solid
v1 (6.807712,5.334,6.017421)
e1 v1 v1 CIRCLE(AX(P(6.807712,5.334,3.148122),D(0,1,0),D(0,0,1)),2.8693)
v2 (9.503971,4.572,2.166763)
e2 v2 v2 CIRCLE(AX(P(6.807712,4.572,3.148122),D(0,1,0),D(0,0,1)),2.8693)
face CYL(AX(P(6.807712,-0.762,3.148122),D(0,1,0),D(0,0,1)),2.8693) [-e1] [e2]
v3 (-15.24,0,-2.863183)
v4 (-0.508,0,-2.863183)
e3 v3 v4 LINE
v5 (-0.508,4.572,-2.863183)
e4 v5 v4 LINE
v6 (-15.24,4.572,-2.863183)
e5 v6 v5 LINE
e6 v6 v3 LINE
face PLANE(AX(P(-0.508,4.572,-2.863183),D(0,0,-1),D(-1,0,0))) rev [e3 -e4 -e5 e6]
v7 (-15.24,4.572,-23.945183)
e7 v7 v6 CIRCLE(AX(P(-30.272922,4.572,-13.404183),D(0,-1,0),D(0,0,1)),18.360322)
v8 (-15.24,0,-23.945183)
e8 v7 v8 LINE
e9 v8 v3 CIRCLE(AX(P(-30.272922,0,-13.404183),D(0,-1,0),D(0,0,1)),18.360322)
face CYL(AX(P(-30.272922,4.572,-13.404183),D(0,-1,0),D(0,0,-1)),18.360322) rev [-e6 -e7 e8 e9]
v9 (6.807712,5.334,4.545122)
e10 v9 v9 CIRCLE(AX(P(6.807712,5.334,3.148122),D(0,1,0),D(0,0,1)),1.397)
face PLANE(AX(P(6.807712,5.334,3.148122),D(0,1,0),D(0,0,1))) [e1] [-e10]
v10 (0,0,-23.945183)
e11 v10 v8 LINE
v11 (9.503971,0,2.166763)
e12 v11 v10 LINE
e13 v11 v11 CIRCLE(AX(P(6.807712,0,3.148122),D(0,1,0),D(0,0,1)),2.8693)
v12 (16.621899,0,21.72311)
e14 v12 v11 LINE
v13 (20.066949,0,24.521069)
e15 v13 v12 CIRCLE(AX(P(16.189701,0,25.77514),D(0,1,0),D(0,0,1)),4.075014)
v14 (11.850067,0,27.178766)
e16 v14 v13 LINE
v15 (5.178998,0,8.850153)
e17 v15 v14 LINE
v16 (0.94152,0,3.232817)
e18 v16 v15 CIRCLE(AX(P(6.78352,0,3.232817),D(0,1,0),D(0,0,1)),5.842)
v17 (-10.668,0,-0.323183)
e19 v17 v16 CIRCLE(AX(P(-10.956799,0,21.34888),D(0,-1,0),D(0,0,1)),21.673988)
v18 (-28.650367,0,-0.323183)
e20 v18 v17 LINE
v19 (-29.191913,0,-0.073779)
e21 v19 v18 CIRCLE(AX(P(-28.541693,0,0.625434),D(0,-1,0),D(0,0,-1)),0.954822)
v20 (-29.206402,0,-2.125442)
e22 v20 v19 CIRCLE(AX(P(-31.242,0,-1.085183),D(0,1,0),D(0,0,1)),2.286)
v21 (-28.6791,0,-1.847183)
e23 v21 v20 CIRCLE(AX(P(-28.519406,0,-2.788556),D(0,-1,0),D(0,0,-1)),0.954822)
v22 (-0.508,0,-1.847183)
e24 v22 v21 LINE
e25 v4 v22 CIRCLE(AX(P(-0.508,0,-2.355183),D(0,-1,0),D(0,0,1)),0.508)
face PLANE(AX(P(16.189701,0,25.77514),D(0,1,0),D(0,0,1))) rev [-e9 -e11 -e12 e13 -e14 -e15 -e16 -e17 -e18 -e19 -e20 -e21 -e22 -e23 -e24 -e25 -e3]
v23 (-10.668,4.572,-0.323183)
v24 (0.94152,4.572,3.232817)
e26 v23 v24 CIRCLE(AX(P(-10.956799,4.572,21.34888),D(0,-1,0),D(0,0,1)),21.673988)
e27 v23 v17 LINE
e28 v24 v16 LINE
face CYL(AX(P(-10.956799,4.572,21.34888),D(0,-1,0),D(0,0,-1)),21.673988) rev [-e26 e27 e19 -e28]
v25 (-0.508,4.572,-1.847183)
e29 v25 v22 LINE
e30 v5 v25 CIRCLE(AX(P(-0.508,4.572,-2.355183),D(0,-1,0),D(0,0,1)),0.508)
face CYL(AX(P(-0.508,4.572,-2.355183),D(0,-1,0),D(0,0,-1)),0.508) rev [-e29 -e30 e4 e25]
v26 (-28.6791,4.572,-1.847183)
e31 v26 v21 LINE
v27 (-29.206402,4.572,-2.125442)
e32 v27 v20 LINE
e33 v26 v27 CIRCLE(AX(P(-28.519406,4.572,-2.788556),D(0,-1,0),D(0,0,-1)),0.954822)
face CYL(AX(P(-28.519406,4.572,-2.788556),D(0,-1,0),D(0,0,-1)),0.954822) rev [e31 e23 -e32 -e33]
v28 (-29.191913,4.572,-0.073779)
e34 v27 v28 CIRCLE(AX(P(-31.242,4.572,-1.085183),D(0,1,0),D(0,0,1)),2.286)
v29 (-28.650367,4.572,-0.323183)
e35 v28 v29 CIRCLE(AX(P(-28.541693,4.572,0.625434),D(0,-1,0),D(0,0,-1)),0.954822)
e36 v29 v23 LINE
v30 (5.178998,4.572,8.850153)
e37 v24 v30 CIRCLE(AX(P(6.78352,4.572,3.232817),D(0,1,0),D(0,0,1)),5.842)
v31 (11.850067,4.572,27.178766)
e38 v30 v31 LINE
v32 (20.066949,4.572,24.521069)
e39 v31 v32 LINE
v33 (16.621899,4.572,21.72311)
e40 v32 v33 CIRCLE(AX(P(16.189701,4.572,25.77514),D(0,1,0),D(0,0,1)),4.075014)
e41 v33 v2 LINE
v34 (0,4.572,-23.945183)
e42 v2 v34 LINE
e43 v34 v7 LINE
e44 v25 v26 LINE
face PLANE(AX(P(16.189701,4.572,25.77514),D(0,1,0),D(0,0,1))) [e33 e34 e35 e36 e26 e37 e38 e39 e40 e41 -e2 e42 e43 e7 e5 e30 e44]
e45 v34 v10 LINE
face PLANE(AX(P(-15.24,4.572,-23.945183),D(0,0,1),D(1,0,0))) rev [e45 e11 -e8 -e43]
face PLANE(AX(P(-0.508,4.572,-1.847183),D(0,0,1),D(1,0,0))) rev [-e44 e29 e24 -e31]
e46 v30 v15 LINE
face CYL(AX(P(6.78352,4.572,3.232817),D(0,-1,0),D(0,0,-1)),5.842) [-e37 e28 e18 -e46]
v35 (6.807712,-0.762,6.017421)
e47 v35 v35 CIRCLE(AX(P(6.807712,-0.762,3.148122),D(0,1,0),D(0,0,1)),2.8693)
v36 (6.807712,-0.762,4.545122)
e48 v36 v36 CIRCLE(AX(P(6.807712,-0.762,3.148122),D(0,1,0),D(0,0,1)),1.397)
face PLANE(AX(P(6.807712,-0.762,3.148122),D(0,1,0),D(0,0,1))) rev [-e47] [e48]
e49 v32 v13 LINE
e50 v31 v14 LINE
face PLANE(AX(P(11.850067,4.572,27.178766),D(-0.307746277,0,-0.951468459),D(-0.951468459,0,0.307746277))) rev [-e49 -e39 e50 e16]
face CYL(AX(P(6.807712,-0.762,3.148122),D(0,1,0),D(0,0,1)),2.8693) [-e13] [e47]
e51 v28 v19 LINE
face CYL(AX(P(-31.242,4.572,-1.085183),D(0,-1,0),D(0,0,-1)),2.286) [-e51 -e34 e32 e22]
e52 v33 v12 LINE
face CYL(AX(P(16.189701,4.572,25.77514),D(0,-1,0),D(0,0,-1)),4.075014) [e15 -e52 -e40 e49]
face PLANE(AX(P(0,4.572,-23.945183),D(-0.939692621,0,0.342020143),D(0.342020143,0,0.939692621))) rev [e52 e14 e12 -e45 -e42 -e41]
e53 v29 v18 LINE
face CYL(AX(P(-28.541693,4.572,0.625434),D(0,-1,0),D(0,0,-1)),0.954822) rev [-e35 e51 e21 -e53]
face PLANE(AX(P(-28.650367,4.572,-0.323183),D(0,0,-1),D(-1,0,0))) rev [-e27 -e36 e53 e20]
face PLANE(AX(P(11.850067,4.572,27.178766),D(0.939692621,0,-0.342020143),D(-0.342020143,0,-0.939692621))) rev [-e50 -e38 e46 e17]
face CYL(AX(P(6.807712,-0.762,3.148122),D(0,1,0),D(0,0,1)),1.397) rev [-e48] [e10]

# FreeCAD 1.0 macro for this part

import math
import FreeCAD as App
import Part
import Sketcher
Q = App.Units.Quantity

doc = App.newDocument("Part")
params = doc.addObject("Spreadsheet::Sheet", "Params")
for row, (alias, value) in enumerate([
    ("sketch1_radius", "0.02 in"),
    ("sketch1_radius2", "0.09 in"),
    ("sketch1_radius3", "0.23 in"),
    ("sketch1_width", "0.6 in"),
    ("sketch1_width2", "0.58 in"),
    ("pad1_length", "0.18 in"),
    ("pad2_length", "0.03 in"),
    ("pad2_length2", "0.21 in"),
    ("sketch3_diameter", "0.11 in"),
], start=1):
    params.set(f"A{row}", alias)
    params.set(f"B{row}", "=" + value)
    params.setAlias(f"B{row}", alias)

body = doc.addObject("PartDesign::Body", "Body")

# Sketch on XZ plane
sketch1 = body.newObject("Sketcher::SketchObject", "Sketch")
sketch1.AttachmentSupport = (doc.getObject("XZ_Plane"), [""])
sketch1.MapMode = "FlatFace"
sketch1.addGeometry([
    Part.LineSegment(App.Vector(16.6, 21.7, 0), App.Vector(0, -23.9, 0)),  # 0
    Part.LineSegment(App.Vector(0, -23.9, 0), App.Vector(-15.2, -23.9, 0)),  # 1
    Part.ArcOfCircle(Part.Circle(App.Vector(-30.3, -13.4, 0), App.Vector(0, 0, 1), 18.4), math.radians(-35), math.radians(35)),  # 2
    Part.LineSegment(App.Vector(-15.2, -2.9, 0), App.Vector(-0.5, -2.9, 0)),  # 3
    Part.ArcOfCircle(Part.Circle(App.Vector(-0.5, -2.4, 0), App.Vector(0, 0, 1), 0.5), math.radians(-90), math.radians(90)),  # 4
    Part.LineSegment(App.Vector(-0.5, -1.8, 0), App.Vector(-28.7, -1.8, 0)),  # 5
    Part.ArcOfCircle(Part.Circle(App.Vector(-28.5, -2.8, 0), App.Vector(0, 0, 1), 1), math.radians(100), math.radians(136)),  # 6
    Part.ArcOfCircle(Part.Circle(App.Vector(-31.2, -1.1, 0), App.Vector(0, 0, 1), 2.3), math.radians(26), math.radians(333)),  # 7
    Part.ArcOfCircle(Part.Circle(App.Vector(-28.5, 0.6, 0), App.Vector(0, 0, 1), 1), math.radians(-133), math.radians(-97)),  # 8
    Part.LineSegment(App.Vector(-28.7, -0.3, 0), App.Vector(-10.7, -0.3, 0)),  # 9
    Part.ArcOfCircle(Part.Circle(App.Vector(-11, 21.3, 0), App.Vector(0, 0, 1), 21.7), math.radians(-89), math.radians(-57)),  # 10
    Part.ArcOfCircle(Part.Circle(App.Vector(6.8, 3.2, 0), App.Vector(0, 0, 1), 5.8), math.radians(106), math.radians(180)),  # 11
    Part.LineSegment(App.Vector(5.2, 8.9, 0), App.Vector(11.9, 27.2, 0)),  # 12
    Part.LineSegment(App.Vector(11.9, 27.2, 0), App.Vector(20.1, 24.5, 0)),  # 13
    Part.ArcOfCircle(Part.Circle(App.Vector(16.2, 25.8, 0), App.Vector(0, 0, 1), 4.1), math.radians(-84), math.radians(-18)),  # 14
], False)
sketch1.addConstraint([
    Sketcher.Constraint("Coincident", 0, 2, 1, 1),
    Sketcher.Constraint("Coincident", 1, 2, 2, 1),
    Sketcher.Constraint("Coincident", 2, 2, 3, 1),
    Sketcher.Constraint("Tangent", 3, 2, 4, 1),
    Sketcher.Constraint("Tangent", 4, 2, 5, 1),
    Sketcher.Constraint("Coincident", 5, 2, 6, 1),
    Sketcher.Constraint("Coincident", 6, 2, 7, 2),
    Sketcher.Constraint("Coincident", 7, 1, 8, 1),
    Sketcher.Constraint("Coincident", 8, 2, 9, 1),
    Sketcher.Constraint("Coincident", 9, 2, 10, 1),
    Sketcher.Constraint("Coincident", 10, 2, 11, 2),
    Sketcher.Constraint("Coincident", 11, 1, 12, 1),
    Sketcher.Constraint("Coincident", 12, 2, 13, 1),
    Sketcher.Constraint("Coincident", 13, 2, 14, 2),
    Sketcher.Constraint("Coincident", 14, 1, 0, 1),
    Sketcher.Constraint("Horizontal", 1),
    Sketcher.Constraint("Horizontal", 3),
    Sketcher.Constraint("Horizontal", 5),
    Sketcher.Constraint("Horizontal", 9),
    Sketcher.Constraint("Equal", 6, 8),
    Sketcher.Constraint("PointOnObject", 0, 2, -2),
    Sketcher.Constraint("Parallel", 0, 12),
    Sketcher.Constraint("Horizontal", 11, 3, 10, 2),
    Sketcher.Constraint("Vertical", 1, 2, 2, 2),
    Sketcher.Constraint("Radius", 4, Q("0.02 in")),
    Sketcher.Constraint("Radius", 7, Q("0.09 in")),
    Sketcher.Constraint("Radius", 11, Q("0.23 in")),
    Sketcher.Constraint("DistanceX", 1, 2, 1, 1, Q("0.6 in")),
    Sketcher.Constraint("Angle", 0, Q("-110 deg")),
    Sketcher.Constraint("DistanceX", 3, 1, 3, 2, Q("0.58 in")),
    Sketcher.Constraint("DistanceY", 1, 2, 7, 3, Q("0.9 in")),
    Sketcher.Constraint("DistanceY", 4, 2, 11, 3, Q("0.2 in")),
    Sketcher.Constraint("DistanceY", 2, 2, 9, 2, Q("0.1 in")),
    Sketcher.Constraint("DistanceX", 9, 2, 4, 2, Q("0.4 in")),
    Sketcher.Constraint("Distance", 13, Q("0.34 in")),
    Sketcher.Constraint("DistanceX", 7, 3, -1, 1, Q("1.23 in")),
    Sketcher.Constraint("DistanceY", 4, 3, 7, 3, Q("0.05 in")),
    Sketcher.Constraint("Radius", 6, Q("0.954822 mm")),
    Sketcher.Constraint("DistanceX", 5, 2, 5, 1, Q("28.1711 mm")),
    Sketcher.Constraint("Radius", 2, Q("18.360322 mm")),
    Sketcher.Constraint("Radius", 10, Q("21.673988 mm")),
    Sketcher.Constraint("Radius", 14, Q("4.075014 mm")),
    Sketcher.Constraint("DistanceX", 10, 3, -1, 1, Q("10.956799 mm")),
    Sketcher.Constraint("DistanceX", -1, 1, 14, 3, Q("16.189701 mm")),
    Sketcher.Constraint("DistanceX", 6, 2, -1, 1, Q("29.206402 mm")),
    Sketcher.Constraint("DistanceX", -1, 1, 14, 1, Q("16.621899 mm")),
    Sketcher.Constraint("DistanceX", 11, 1, 14, 1, Q("11.442902 mm")),
    Sketcher.Constraint("DistanceX", 9, 1, 9, 2, Q("17.982367 mm")),
    Sketcher.Constraint("DistanceY", -1, 1, 10, 3, Q("21.34888 mm")),
    Sketcher.Constraint("DistanceY", 7, 1, -1, 1, Q("0.073779 mm")),
    Sketcher.Constraint("DistanceX", -1, 1, 13, 2, Q("20.066949 mm")),
])
sketch1.setExpression("Constraints[24]", "Params.sketch1_radius")
sketch1.setExpression("Constraints[25]", "Params.sketch1_radius2")
sketch1.setExpression("Constraints[26]", "Params.sketch1_radius3")
sketch1.setExpression("Constraints[27]", "Params.sketch1_width")
sketch1.setExpression("Constraints[29]", "Params.sketch1_width2")
pad1 = body.newObject("PartDesign::Pad", "Pad")
pad1.Profile = sketch1
pad1.setExpression("Length", "Params.pad1_length")
pad1.Reversed = True

# Sketch on XZ plane
sketch2 = body.newObject("Sketcher::SketchObject", "Sketch001")
sketch2.AttachmentSupport = (doc.getObject("XZ_Plane"), [""])
sketch2.MapMode = "FlatFace"
sketch2.AttachmentOffset = App.Placement(App.Vector(0, 0, -0.18 * 25.4), App.Rotation())
sketch2.addGeometry(Part.Circle(App.Vector(6.8, 3.1, 0), App.Vector(0, 0, 1), 2.9), False)
sketch2.addConstraint([
    Sketcher.Constraint("Diameter", 0, Q("5.738599 mm")),
    Sketcher.Constraint("DistanceX", -1, 1, 0, 3, Q("6.807712 mm")),
    Sketcher.Constraint("DistanceY", -1, 1, 0, 3, Q("3.148122 mm")),
])
pad2 = body.newObject("PartDesign::Pad", "Pad001")
pad2.Profile = sketch2
pad2.Type = "TwoLengths"
pad2.setExpression("Length", "Params.pad2_length")
pad2.setExpression("Length2", "Params.pad2_length2")
pad2.Reversed = True

# Sketch on XZ plane
sketch3 = body.newObject("Sketcher::SketchObject", "Sketch002")
sketch3.AttachmentSupport = (doc.getObject("XZ_Plane"), [""])
sketch3.MapMode = "FlatFace"
sketch3.AttachmentOffset = App.Placement(App.Vector(0, 0, -0.21 * 25.4), App.Rotation())
sketch3.addGeometry(Part.Circle(App.Vector(6.8, 3.1, 0), App.Vector(0, 0, 1), 1.4), False)
sketch3.addConstraint([
    Sketcher.Constraint("Diameter", 0, Q("0.11 in")),
    Sketcher.Constraint("DistanceX", -1, 1, 0, 3, Q("6.807712 mm")),
    Sketcher.Constraint("DistanceY", -1, 1, 0, 3, Q("3.148122 mm")),
])
sketch3.setExpression("Constraints[0]", "Params.sketch3_diameter")
pocket1 = body.newObject("PartDesign::Pocket", "Pocket")
pocket1.Profile = sketch3
pocket1.Type = "ThroughAll"
pocket1.Reversed = True

doc.recompute()
